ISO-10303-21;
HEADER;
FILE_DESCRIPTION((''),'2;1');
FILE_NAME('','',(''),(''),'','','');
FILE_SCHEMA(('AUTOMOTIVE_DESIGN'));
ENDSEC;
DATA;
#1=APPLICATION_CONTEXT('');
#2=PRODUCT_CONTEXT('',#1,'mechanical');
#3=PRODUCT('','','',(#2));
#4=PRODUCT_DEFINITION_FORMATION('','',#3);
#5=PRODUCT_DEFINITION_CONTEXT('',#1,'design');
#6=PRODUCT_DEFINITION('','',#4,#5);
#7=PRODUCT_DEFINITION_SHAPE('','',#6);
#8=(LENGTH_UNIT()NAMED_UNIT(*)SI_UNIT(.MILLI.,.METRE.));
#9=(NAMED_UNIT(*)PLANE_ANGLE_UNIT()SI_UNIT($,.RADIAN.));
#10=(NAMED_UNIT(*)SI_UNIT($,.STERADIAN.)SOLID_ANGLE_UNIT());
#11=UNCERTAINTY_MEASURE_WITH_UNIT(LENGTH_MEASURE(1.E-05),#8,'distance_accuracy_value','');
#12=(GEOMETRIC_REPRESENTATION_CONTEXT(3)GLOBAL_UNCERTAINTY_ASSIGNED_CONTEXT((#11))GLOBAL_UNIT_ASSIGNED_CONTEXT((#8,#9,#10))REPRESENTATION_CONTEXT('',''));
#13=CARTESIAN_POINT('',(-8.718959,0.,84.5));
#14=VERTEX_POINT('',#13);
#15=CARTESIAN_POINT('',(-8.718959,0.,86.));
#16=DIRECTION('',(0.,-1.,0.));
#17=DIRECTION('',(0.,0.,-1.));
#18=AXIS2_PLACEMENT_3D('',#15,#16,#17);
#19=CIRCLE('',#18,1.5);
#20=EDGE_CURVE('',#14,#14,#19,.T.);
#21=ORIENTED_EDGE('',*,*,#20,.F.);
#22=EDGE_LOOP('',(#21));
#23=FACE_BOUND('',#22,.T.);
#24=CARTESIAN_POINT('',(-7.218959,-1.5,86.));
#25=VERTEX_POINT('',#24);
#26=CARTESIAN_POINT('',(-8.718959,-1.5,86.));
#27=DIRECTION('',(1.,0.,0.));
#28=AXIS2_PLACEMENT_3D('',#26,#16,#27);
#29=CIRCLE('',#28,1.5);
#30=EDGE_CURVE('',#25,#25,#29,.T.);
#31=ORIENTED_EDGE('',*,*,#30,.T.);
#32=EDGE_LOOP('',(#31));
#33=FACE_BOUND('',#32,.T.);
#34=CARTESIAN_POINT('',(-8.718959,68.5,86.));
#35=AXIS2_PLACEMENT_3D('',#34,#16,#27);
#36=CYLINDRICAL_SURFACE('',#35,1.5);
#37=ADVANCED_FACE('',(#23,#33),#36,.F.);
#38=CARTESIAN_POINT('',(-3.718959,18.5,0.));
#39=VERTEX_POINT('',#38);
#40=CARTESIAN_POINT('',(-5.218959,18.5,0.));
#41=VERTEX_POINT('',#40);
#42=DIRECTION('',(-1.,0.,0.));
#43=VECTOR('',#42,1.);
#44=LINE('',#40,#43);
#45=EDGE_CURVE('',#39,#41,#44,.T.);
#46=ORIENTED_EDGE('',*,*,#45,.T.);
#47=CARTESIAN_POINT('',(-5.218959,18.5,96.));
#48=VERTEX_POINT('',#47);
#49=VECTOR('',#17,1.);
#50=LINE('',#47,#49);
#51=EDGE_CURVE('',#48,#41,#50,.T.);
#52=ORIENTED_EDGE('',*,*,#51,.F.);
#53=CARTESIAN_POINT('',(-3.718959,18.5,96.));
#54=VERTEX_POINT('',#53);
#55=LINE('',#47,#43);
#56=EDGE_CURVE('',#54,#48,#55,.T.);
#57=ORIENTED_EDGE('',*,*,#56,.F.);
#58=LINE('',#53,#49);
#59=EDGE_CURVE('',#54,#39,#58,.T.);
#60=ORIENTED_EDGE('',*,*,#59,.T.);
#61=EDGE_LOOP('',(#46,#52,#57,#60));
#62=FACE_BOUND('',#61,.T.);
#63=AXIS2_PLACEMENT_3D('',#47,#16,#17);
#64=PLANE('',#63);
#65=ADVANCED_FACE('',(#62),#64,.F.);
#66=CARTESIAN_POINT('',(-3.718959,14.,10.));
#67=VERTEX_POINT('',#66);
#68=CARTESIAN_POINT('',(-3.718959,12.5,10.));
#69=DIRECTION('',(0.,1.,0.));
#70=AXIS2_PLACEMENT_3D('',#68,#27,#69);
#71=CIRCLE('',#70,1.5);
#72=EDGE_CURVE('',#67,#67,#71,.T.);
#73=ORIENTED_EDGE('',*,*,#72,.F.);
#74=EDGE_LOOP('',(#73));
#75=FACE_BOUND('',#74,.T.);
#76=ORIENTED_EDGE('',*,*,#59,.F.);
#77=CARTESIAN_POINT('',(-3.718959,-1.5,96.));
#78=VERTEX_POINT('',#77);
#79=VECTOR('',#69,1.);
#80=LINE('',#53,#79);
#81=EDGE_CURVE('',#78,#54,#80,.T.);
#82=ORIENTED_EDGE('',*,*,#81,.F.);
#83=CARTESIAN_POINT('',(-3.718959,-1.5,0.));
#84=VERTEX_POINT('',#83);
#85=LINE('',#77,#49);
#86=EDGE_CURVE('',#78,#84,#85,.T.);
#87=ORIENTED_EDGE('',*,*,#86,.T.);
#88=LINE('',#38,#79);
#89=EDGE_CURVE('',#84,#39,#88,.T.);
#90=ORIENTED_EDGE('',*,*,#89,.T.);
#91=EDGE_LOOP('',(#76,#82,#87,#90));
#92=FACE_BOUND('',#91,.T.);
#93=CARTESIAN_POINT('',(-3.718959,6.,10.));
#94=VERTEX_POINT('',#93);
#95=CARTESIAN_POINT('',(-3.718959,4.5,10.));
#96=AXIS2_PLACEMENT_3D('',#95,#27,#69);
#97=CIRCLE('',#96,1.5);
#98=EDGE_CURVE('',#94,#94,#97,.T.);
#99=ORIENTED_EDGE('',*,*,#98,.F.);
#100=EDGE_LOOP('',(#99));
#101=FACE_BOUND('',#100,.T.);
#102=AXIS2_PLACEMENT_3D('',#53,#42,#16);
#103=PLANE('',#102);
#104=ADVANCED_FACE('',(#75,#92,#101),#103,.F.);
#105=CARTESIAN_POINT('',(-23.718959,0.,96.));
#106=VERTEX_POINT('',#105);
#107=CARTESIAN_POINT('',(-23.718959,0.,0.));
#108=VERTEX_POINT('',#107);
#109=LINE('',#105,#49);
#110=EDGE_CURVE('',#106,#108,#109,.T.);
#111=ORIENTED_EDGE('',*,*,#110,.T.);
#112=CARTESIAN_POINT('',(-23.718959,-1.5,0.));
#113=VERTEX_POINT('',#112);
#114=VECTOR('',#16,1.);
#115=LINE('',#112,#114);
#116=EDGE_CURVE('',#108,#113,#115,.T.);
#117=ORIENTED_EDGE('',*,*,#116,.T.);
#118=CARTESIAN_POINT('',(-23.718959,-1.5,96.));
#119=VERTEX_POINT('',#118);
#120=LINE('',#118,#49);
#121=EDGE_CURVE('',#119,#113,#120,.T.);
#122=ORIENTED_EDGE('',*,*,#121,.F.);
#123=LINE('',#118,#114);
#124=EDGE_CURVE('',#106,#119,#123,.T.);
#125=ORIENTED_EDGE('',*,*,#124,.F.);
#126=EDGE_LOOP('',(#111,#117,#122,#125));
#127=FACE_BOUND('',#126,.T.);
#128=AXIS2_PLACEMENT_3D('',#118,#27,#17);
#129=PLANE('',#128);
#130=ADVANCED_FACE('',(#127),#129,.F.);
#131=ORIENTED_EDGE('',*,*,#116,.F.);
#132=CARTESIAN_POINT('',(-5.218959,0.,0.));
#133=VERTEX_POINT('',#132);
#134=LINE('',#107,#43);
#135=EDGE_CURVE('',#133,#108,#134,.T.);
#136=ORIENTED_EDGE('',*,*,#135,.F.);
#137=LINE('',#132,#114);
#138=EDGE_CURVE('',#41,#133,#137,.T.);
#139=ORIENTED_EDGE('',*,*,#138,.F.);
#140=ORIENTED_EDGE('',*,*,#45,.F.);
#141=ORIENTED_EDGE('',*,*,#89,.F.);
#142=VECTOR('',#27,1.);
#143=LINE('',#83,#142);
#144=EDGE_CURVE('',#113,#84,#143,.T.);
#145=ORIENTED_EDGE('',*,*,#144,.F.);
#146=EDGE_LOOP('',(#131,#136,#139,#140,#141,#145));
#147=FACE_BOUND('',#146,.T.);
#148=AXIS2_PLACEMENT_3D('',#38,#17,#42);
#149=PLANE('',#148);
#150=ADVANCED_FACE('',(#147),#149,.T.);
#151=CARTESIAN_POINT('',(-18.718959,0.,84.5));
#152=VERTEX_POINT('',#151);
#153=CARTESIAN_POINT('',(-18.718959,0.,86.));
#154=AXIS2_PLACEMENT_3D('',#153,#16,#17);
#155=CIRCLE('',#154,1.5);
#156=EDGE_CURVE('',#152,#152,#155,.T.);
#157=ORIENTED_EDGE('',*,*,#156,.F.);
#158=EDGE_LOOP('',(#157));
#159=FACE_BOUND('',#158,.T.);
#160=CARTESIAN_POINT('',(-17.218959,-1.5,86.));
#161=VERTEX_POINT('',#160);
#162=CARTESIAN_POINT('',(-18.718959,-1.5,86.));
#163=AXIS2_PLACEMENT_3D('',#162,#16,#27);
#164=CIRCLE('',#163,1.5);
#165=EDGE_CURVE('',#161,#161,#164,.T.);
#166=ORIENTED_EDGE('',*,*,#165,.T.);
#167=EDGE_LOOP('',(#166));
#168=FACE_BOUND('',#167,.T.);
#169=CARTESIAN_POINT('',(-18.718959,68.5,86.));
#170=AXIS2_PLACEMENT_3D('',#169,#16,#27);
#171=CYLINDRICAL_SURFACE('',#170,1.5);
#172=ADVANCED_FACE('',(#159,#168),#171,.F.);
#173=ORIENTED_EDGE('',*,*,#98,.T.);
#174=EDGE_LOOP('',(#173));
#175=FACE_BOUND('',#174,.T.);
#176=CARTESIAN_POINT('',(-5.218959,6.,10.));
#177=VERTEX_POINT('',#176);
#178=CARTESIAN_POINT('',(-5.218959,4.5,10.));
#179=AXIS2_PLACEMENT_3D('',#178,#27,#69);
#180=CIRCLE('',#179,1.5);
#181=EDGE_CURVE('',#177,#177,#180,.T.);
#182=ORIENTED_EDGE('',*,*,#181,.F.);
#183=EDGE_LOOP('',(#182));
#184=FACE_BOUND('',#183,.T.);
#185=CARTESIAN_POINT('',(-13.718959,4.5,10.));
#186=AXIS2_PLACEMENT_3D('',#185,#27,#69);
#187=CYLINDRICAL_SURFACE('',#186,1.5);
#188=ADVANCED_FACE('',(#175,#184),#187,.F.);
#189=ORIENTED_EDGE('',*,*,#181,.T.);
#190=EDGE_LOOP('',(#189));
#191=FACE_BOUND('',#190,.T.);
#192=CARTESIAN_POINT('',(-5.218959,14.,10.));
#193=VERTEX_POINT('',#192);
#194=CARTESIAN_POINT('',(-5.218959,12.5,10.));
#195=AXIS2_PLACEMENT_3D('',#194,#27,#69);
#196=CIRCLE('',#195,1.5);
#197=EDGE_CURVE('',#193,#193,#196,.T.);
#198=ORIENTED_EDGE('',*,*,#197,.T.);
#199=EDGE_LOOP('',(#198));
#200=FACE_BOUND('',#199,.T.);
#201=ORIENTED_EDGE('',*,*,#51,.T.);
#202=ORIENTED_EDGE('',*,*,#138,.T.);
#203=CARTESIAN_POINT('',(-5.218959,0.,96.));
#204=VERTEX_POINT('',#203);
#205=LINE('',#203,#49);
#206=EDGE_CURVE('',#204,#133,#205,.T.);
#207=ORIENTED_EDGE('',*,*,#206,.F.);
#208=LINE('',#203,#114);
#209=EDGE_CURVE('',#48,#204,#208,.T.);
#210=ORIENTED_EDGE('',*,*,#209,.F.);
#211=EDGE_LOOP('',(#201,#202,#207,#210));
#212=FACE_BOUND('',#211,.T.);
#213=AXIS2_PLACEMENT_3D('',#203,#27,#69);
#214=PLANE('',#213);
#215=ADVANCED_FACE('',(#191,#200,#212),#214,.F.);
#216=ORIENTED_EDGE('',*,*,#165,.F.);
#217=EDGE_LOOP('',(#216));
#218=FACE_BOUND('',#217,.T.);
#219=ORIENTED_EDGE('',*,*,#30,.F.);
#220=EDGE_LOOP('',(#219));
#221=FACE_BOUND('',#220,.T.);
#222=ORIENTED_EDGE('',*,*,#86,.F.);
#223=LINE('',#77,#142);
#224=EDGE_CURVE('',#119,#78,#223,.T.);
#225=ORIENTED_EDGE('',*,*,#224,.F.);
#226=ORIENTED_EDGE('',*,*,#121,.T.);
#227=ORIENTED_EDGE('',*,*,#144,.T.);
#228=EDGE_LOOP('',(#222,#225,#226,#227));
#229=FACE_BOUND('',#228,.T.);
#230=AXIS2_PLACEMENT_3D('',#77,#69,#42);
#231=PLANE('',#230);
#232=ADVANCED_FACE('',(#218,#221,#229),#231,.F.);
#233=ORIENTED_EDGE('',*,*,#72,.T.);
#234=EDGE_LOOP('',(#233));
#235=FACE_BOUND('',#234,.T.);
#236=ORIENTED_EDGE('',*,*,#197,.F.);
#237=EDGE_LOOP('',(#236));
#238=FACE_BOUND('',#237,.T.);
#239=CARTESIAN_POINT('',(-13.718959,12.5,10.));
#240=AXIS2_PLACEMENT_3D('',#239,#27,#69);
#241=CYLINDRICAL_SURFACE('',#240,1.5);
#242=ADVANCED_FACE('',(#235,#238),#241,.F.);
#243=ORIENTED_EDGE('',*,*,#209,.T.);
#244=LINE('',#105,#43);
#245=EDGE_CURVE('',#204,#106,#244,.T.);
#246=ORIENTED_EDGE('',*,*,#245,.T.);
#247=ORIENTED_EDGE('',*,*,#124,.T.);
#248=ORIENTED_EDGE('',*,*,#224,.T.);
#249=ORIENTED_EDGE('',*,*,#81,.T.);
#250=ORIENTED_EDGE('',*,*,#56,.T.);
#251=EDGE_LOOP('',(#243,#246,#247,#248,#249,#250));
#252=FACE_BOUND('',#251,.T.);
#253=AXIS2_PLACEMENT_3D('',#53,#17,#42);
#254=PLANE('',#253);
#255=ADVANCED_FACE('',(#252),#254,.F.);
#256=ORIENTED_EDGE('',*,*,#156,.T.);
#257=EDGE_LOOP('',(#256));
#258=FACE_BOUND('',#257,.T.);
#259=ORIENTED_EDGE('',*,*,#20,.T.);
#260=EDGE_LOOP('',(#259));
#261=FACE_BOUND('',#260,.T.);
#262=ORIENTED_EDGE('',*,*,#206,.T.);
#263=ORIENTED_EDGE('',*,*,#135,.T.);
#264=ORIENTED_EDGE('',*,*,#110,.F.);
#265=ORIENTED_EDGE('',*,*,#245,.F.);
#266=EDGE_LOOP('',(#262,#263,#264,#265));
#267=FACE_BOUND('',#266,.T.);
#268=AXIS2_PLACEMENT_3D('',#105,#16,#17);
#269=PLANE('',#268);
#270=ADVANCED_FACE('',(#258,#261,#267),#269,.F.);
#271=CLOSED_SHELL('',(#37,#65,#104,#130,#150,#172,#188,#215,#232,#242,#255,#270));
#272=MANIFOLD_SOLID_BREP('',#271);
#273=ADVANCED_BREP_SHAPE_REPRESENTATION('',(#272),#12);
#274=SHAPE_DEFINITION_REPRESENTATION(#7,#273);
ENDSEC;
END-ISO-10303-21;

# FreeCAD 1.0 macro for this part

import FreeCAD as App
import Part
import Sketcher
from FreeCAD import Vector
Q = App.Units.Quantity


def add_polygon(sketch, points):
    """Adds a closed chain of lines whose ends are joined by coincident constraints."""
    first, n = sketch.GeometryCount, len(points)
    for a, b in zip(points, points[1:] + points[:1]):
        sketch.addGeometry(Part.LineSegment(App.Vector(*a, 0), App.Vector(*b, 0)), False)
    for i in range(n):
        sketch.addConstraint(Sketcher.Constraint("Coincident", first + i, 2, first + (i + 1) % n, 1))

doc = App.newDocument("Part")
body = doc.addObject("PartDesign::Body", "Body")

sketch1 = body.newObject("Sketcher::SketchObject", "Sketch")
sketch1.AttachmentSupport = (doc.getObject("XY_Plane"), [""])
sketch1.MapMode = "FlatFace"
add_polygon(sketch1, [(-3.7, -1.5), (-3.7, 18.5), (-5.2, 18.5), (-5.2, 0), (-23.7, 0), (-23.7, -1.5)])
sketch1.addConstraint([
    Sketcher.Constraint("Vertical", 0),
    Sketcher.Constraint("Horizontal", 1),
    Sketcher.Constraint("Vertical", 2),
    Sketcher.Constraint("Horizontal", 3),
    Sketcher.Constraint("Vertical", 4),
    Sketcher.Constraint("Horizontal", 5),
    Sketcher.Constraint("PointOnObject", 2, 2, -1),
    Sketcher.Constraint("Equal", 5, 0),
    Sketcher.Constraint("Equal", 3, 2),
    Sketcher.Constraint("DistanceX", 5, 1, 5, 2, Q("20 mm")),
    Sketcher.Constraint("DistanceX", 1, 2, 1, 1, Q("1.5 mm")),
    Sketcher.Constraint("DistanceX", 0, 2, -1, 1, Q("3.718959 mm")),
])
pad1 = body.newObject("PartDesign::Pad", "Pad")
pad1.Profile = sketch1
pad1.Length = 96

sketch2 = body.newObject("Sketcher::SketchObject", "Sketch001")
sketch2.AttachmentSupport = (doc.getObject("XZ_Plane"), [""])
sketch2.MapMode = "FlatFace"
sketch2.AttachmentOffset = App.Placement(Vector(0, 0, 1.5), App.Rotation())
sketch2.addGeometry([
    Part.Circle(Vector(-8.7, 86, 0), Vector(0, 0, 1), 1.5),
    Part.Circle(Vector(-18.7, 86, 0), Vector(0, 0, 1), 1.5),
], False)
sketch2.addConstraint([
    Sketcher.Constraint("Equal", 0, 1),
    Sketcher.Constraint("Horizontal", 0, 3, 1, 3),
    Sketcher.Constraint("Diameter", 0, Q("3 mm")),
    Sketcher.Constraint("DistanceY", -1, 1, 0, 3, Q("86 mm")),
    Sketcher.Constraint("DistanceX", 1, 3, 0, 3, Q("10 mm")),
    Sketcher.Constraint("DistanceX", 0, 3, -1, 1, Q("8.718959 mm")),
])
pocket1 = body.newObject("PartDesign::Pocket", "Pocket")
pocket1.Profile = sketch2
pocket1.Length = 70

sketch3 = body.newObject("Sketcher::SketchObject", "Sketch002")
sketch3.AttachmentSupport = (doc.getObject("YZ_Plane"), [""])
sketch3.MapMode = "FlatFace"
sketch3.AttachmentOffset = App.Placement(Vector(0, 0, -3.718959), App.Rotation())
sketch3.addGeometry([
    Part.Circle(Vector(12.5, 10, 0), Vector(0, 0, 1), 1.5),
    Part.Circle(Vector(4.5, 10, 0), Vector(0, 0, 1), 1.5),
], False)
sketch3.addConstraint([
    Sketcher.Constraint("Equal", 0, 1),
    Sketcher.Constraint("Horizontal", 0, 3, 1, 3),
    Sketcher.Constraint("Diameter", 0, Q("3 mm")),
    Sketcher.Constraint("DistanceY", -1, 1, 0, 3, Q("10 mm")),
    Sketcher.Constraint("DistanceX", 1, 3, 0, 3, Q("8 mm")),
    Sketcher.Constraint("DistanceX", -1, 1, 0, 3, Q("12.5 mm")),
])
pocket2 = body.newObject("PartDesign::Pocket", "Pocket001")
pocket2.Profile = sketch3
pocket2.Length = 10

doc.recompute()
